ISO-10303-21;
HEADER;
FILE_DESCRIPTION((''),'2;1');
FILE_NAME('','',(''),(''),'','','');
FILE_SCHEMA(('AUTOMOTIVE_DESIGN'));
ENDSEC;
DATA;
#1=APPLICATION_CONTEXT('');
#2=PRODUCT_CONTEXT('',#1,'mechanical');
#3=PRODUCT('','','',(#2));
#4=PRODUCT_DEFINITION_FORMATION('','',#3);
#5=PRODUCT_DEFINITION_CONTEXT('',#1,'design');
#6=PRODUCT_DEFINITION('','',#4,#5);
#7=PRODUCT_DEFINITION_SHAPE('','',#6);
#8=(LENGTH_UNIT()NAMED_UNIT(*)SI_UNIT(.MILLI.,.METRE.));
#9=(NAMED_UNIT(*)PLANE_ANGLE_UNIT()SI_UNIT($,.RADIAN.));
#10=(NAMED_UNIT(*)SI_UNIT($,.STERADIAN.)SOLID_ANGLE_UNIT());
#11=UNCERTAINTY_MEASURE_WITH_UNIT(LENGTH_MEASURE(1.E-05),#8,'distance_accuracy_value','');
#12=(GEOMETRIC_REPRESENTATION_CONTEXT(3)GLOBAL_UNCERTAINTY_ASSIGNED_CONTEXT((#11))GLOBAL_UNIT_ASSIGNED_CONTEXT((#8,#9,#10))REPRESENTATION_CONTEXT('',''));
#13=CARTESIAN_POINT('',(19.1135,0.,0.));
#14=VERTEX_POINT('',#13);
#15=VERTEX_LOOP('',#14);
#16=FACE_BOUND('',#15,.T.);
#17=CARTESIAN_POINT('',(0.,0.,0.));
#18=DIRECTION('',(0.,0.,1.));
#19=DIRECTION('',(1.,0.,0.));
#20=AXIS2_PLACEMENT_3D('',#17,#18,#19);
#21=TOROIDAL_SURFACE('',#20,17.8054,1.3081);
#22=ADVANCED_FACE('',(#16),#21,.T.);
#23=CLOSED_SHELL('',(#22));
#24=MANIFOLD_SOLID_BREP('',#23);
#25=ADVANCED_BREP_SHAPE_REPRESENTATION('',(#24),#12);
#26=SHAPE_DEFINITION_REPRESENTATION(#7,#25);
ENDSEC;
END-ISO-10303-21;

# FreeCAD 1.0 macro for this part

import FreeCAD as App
import Part
import Sketcher
from FreeCAD import Vector
Q = App.Units.Quantity

doc = App.newDocument("Part")
body = doc.addObject("PartDesign::Body", "Body")

sketch1 = doc.addObject("Sketcher::SketchObject", "Sketch")
body.addObject(sketch1)
sketch1.AttachmentSupport = (doc.YZ_Plane, [""])
sketch1.MapMode = "FlatFace"
sketch1.addGeometry(Part.Circle(Vector(-17.8, 0, 0), Vector(0, 0, 1), 1.3), False)
sketch1.addConstraint([
    Sketcher.Constraint("PointOnObject", 0, 3, -1),
    Sketcher.Constraint("Diameter", 0, Q("0.103 in")),
    Sketcher.Constraint("DistanceX", 0, 3, -1, 1, Q("0.701 in")),
])
revolution = doc.addObject("PartDesign::Revolution", "Revolution")
body.addObject(revolution)
revolution.Profile = sketch1
revolution.ReferenceAxis = (sketch1, ["V_Axis"])
revolution.Angle = 360

doc.recompute()
